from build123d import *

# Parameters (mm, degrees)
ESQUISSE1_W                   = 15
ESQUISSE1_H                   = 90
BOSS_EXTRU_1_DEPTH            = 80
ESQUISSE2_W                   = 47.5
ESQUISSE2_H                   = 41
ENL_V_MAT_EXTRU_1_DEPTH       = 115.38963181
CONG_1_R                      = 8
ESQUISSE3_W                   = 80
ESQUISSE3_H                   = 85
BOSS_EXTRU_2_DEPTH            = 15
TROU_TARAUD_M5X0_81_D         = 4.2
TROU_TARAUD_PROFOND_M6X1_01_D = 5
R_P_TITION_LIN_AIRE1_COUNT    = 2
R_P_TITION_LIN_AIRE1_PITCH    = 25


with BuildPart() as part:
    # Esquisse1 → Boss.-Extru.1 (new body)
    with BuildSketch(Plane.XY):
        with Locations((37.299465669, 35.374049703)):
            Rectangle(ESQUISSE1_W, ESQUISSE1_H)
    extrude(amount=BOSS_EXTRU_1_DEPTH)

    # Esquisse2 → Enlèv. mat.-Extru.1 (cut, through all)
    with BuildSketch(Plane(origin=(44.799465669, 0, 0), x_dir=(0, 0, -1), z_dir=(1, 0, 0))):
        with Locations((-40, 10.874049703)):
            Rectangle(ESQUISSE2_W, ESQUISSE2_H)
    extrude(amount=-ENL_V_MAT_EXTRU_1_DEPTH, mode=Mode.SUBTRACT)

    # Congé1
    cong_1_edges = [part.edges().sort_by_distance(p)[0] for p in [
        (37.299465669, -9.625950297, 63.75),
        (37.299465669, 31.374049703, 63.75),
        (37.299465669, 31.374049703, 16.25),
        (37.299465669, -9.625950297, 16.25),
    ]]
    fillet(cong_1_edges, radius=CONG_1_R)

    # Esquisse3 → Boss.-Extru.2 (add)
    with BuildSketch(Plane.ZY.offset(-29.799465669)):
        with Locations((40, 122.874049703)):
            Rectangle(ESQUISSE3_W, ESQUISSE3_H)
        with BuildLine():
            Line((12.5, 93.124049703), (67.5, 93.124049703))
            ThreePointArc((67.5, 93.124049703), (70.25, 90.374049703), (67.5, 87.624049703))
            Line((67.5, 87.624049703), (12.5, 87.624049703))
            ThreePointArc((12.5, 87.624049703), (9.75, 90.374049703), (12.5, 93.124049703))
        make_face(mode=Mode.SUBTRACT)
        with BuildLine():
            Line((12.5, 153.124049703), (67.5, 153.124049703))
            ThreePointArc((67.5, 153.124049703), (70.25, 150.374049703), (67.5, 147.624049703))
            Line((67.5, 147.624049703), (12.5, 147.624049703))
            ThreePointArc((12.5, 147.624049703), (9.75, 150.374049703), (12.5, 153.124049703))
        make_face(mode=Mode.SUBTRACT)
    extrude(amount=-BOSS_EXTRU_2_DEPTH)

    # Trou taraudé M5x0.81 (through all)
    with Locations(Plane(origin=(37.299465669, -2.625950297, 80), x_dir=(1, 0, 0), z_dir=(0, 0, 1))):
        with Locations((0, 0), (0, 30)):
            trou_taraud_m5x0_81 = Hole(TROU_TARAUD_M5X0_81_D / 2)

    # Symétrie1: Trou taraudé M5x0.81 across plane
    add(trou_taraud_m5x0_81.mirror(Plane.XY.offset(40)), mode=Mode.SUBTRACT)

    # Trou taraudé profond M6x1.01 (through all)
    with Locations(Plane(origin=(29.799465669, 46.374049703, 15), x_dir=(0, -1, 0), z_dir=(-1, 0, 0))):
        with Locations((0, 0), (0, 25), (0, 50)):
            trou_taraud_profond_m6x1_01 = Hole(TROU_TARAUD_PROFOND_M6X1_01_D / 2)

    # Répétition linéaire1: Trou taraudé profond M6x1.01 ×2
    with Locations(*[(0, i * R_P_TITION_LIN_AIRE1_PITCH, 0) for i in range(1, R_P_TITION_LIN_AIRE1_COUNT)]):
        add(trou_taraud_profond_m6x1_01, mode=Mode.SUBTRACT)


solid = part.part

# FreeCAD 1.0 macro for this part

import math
import FreeCAD as App
import Part
import Sketcher

V = App.Vector
Q = App.Units.Quantity


def edges_at(feature, points):
    """Names of the edges that pass closest to the given points."""
    edges = feature.Shape.Edges
    near = lambda p: min(range(len(edges)), key=lambda i: edges[i].distToShape(Part.Vertex(*p))[0])
    return sorted({f"Edge{near(p) + 1}" for p in points})


def add_polygon(sketch, points):
    """Adds a closed chain of lines whose ends are joined by coincident constraints."""
    first, n = sketch.GeometryCount, len(points)
    for a, b in zip(points, points[1:] + points[:1]):
        sketch.addGeometry(Part.LineSegment(App.Vector(*a, 0), App.Vector(*b, 0)), False)
    for i in range(n):
        sketch.addConstraint(Sketcher.Constraint("Coincident", first + i, 2, first + (i + 1) % n, 1))

doc = App.newDocument("Part")
params = doc.addObject("Spreadsheet::Sheet", "Params")
for row, (alias, value) in enumerate([
    ("sketch1_width", "15 mm"),
    ("sketch1_height", "90 mm"),
    ("pad1_length", "80 mm"),
    ("sketch2_width", "41 mm"),
    ("sketch2_height", "47.5 mm"),
    ("fillet_radius", "8 mm"),
    ("sketch3_width", "85 mm"),
    ("sketch3_height", "80 mm"),
    ("sketch3_height2", "55 mm"),
    ("sketch3_radius", "2.75 mm"),
    ("pad2_length", "15 mm"),
    ("sketch4_diameter", "4.2 mm"),
    ("hole_diameter", "4.2 mm"),
    ("sketch5_diameter", "5 mm"),
    ("hole2_diameter", "5 mm"),
    ("linearpattern_pitch", "25 mm"),
], start=1):
    params.set(f"A{row}", alias)
    params.set(f"B{row}", "=" + value)
    params.setAlias(f"B{row}", alias)

body = doc.addObject("PartDesign::Body", "Body")

# Sketch on XY plane
sketch1 = body.newObject("Sketcher::SketchObject", "Sketch")
sketch1.AttachmentSupport = (doc.getObject("XY_Plane"), [""])
sketch1.MapMode = "FlatFace"
add_polygon(sketch1, [(30, 80), (30, -10), (45, -10), (45, 80)])  # lines 0-3
sketch1.addConstraint([
    Sketcher.Constraint("Vertical", 0),
    Sketcher.Constraint("Horizontal", 1),
    Sketcher.Constraint("Vertical", 2),
    Sketcher.Constraint("Horizontal", 3),
    Sketcher.Constraint("DistanceX", 1, 1, 1, 2, Q("15 mm")),
    Sketcher.Constraint("DistanceY", 0, 2, 0, 1, Q("90 mm")),
    Sketcher.Constraint("DistanceY", 0, 2, -1, 1, Q("9.62595 mm")),
    Sketcher.Constraint("DistanceX", -1, 1, 0, 2, Q("29.799466 mm")),
])
sketch1.setExpression("Constraints[8]", "Params.sketch1_width")
sketch1.setExpression("Constraints[9]", "Params.sketch1_height")
pad1 = body.newObject("PartDesign::Pad", "Pad")
pad1.Profile = sketch1
pad1.setExpression("Length", "Params.pad1_length")

# Sketch on YZ plane
sketch2 = body.newObject("Sketcher::SketchObject", "Sketch001")
sketch2.AttachmentSupport = (doc.getObject("YZ_Plane"), [""])
sketch2.MapMode = "FlatFace"
sketch2.AttachmentOffset = App.Placement(V(0, 0, 44.799466), App.Rotation())
add_polygon(sketch2, [(31, 64), (-10, 64), (-10, 16), (31, 16)])  # lines 0-3
sketch2.addConstraint([
    Sketcher.Constraint("Horizontal", 0),
    Sketcher.Constraint("Vertical", 1),
    Sketcher.Constraint("Horizontal", 2),
    Sketcher.Constraint("Vertical", 3),
    Sketcher.Constraint("DistanceX", 0, 2, 0, 1, Q("41 mm")),
    Sketcher.Constraint("DistanceY", 1, 2, 1, 1, Q("47.5 mm")),
    Sketcher.Constraint("DistanceY", -1, 1, 0, 2, Q("63.75 mm")),
    Sketcher.Constraint("DistanceX", 0, 2, -1, 1, Q("9.62595 mm")),
])
sketch2.setExpression("Constraints[8]", "Params.sketch2_width")
sketch2.setExpression("Constraints[9]", "Params.sketch2_height")
pocket1 = body.newObject("PartDesign::Pocket", "Pocket")
pocket1.Profile = sketch2
pocket1.Type = "ThroughAll"
doc.recompute()

fillet = body.newObject("PartDesign::Fillet", "Fillet")
fillet.Base = (pocket1, edges_at(pocket1, [
    (37.299, -9.626, 63.75),
    (37.299, 31.374, 63.75),
    (37.299, 31.374, 16.25),
    (37.299, -9.626, 16.25),
]))
fillet.setExpression("Radius", "Params.fillet_radius")

# Sketch on YZ plane
sketch3 = body.newObject("Sketcher::SketchObject", "Sketch002")
sketch3.AttachmentSupport = (doc.getObject("YZ_Plane"), [""])
sketch3.MapMode = "FlatFace"
sketch3.AttachmentOffset = App.Placement(V(0, 0, 29.799466), App.Rotation())
add_polygon(sketch3, [(165.4, 0), (80.4, 0), (80.4, 80), (165.4, 80)])  # lines 0-3
sketch3.addGeometry(Part.ArcOfCircle(Part.Circle(V(90.4, 12.5, 0), V(0, 0, 1), 2.8), math.radians(180), math.radians(360)), False)  # 4
sketch3.addGeometry(Part.LineSegment(V(93.1, 12.5, 0), V(93.1, 67.5, 0)), False)  # 5
sketch3.addGeometry(Part.ArcOfCircle(Part.Circle(V(90.4, 67.5, 0), V(0, 0, 1), 2.8), math.radians(0), math.radians(180)), False)  # 6
sketch3.addGeometry(Part.LineSegment(V(87.6, 67.5, 0), V(87.6, 12.5, 0)), False)  # 7
sketch3.addGeometry(Part.ArcOfCircle(Part.Circle(V(150.4, 12.5, 0), V(0, 0, 1), 2.8), math.radians(180), math.radians(360)), False)  # 8
sketch3.addGeometry(Part.LineSegment(V(153.1, 12.5, 0), V(153.1, 67.5, 0)), False)  # 9
sketch3.addGeometry(Part.ArcOfCircle(Part.Circle(V(150.4, 67.5, 0), V(0, 0, 1), 2.8), math.radians(0), math.radians(180)), False)  # 10
sketch3.addGeometry(Part.LineSegment(V(147.6, 67.5, 0), V(147.6, 12.5, 0)), False)  # 11
sketch3.addConstraint([
    Sketcher.Constraint("Tangent", 4, 2, 5, 1),
    Sketcher.Constraint("Tangent", 5, 2, 6, 1),
    Sketcher.Constraint("Tangent", 6, 2, 7, 1),
    Sketcher.Constraint("Tangent", 7, 2, 4, 1),
    Sketcher.Constraint("Tangent", 8, 2, 9, 1),
    Sketcher.Constraint("Tangent", 9, 2, 10, 1),
    Sketcher.Constraint("Tangent", 10, 2, 11, 1),
    Sketcher.Constraint("Tangent", 11, 2, 8, 1),
    Sketcher.Constraint("Horizontal", 0),
    Sketcher.Constraint("Vertical", 1),
    Sketcher.Constraint("Horizontal", 2),
    Sketcher.Constraint("Vertical", 3),
    Sketcher.Constraint("Vertical", 5),
    Sketcher.Constraint("Vertical", 7),
    Sketcher.Constraint("Vertical", 9),
    Sketcher.Constraint("Vertical", 11),
    Sketcher.Constraint("Equal", 6, 8),
    Sketcher.Constraint("PointOnObject", 0, 2, -1),
    Sketcher.Constraint("Horizontal", 4, 3, 8, 3),
    Sketcher.Constraint("Horizontal", 6, 3, 10, 3),
    Sketcher.Constraint("DistanceX", 0, 2, 0, 1, Q("85 mm")),
    Sketcher.Constraint("DistanceY", 1, 1, 1, 2, Q("80 mm")),
    Sketcher.Constraint("DistanceY", 5, 1, 5, 2, Q("55 mm")),
    Sketcher.Constraint("Radius", 4, Q("2.75 mm")),
    Sketcher.Constraint("DistanceX", 4, 3, 8, 3, Q("60 mm")),
    Sketcher.Constraint("DistanceX", 0, 2, 4, 3, Q("10 mm")),
    Sketcher.Constraint("DistanceY", -1, 1, 4, 3, Q("12.5 mm")),
    Sketcher.Constraint("DistanceX", -1, 1, 4, 3, Q("90.37405 mm")),
])
sketch3.setExpression("Constraints[24]", "Params.sketch3_width")
sketch3.setExpression("Constraints[25]", "Params.sketch3_height")
sketch3.setExpression("Constraints[26]", "Params.sketch3_height2")
sketch3.setExpression("Constraints[27]", "Params.sketch3_radius")
pad2 = body.newObject("PartDesign::Pad", "Pad001")
pad2.Profile = sketch3
pad2.setExpression("Length", "Params.pad2_length")

# Sketch on XY plane
sketch4 = body.newObject("Sketcher::SketchObject", "Sketch003")
sketch4.AttachmentSupport = (doc.getObject("XY_Plane"), [""])
sketch4.MapMode = "FlatFace"
sketch4.AttachmentOffset = App.Placement(V(0, 0, 80), App.Rotation())
sketch4.addGeometry([
    Part.Circle(V(37.3, -2.6, 0), V(0, 0, 1), 2.1),
    Part.Circle(V(37.3, 27.4, 0), V(0, 0, 1), 2.1),
], False)
sketch4.addConstraint([
    Sketcher.Constraint("Equal", 0, 1),
    Sketcher.Constraint("Vertical", 0, 3, 1, 3),
    Sketcher.Constraint("Diameter", 0, Q("4.2 mm")),
    Sketcher.Constraint("DistanceY", 0, 3, 1, 3, Q("30 mm")),
    Sketcher.Constraint("DistanceY", 0, 3, -1, 1, Q("2.62595 mm")),
    Sketcher.Constraint("DistanceX", -1, 1, 0, 3, Q("37.299466 mm")),
])
sketch4.setExpression("Constraints[2]", "Params.sketch4_diameter")
doc.recompute()
hole = body.newObject("PartDesign::Hole", "Hole")
hole.Profile = sketch4
hole.ThreadType = "None"
hole.setExpression("Diameter", "Params.hole_diameter")
hole.DepthType = "ThroughAll"
doc.recompute()

datumplane = body.newObject("PartDesign::Plane", "DatumPlane")
datumplane.AttachmentSupport = (doc.getObject("XY_Plane"), [""])
datumplane.MapMode = "FlatFace"
datumplane.AttachmentOffset = App.Placement(V(0, 0, 40), App.Rotation())
mirrored = body.newObject("PartDesign::Mirrored", "Mirrored")
mirrored.Originals = [hole]
mirrored.MirrorPlane = (datumplane, [""])
body.Tip = mirrored

# Sketch on YZ plane
sketch5 = body.newObject("Sketcher::SketchObject", "Sketch004")
sketch5.AttachmentSupport = (doc.getObject("YZ_Plane"), [""])
sketch5.MapMode = "FlatFace"
sketch5.AttachmentOffset = App.Placement(V(0, 0, 29.799466), App.Rotation())
sketch5.addGeometry([
    Part.Circle(V(46.4, 15, 0), V(0, 0, 1), 2.5),
    Part.Circle(V(46.4, 40, 0), V(0, 0, 1), 2.5),
    Part.Circle(V(46.4, 65, 0), V(0, 0, 1), 2.5),
], False)
sketch5.addConstraint([
    Sketcher.Constraint("Equal", 0, 1),
    Sketcher.Constraint("Equal", 1, 2),
    Sketcher.Constraint("Vertical", 0, 3, 1, 3),
    Sketcher.Constraint("Vertical", 1, 3, 2, 3),
    Sketcher.Constraint("Diameter", 0, Q("5 mm")),
    Sketcher.Constraint("DistanceY", -1, 1, 0, 3, Q("15 mm")),
    Sketcher.Constraint("DistanceY", -1, 1, 1, 3, Q("40 mm")),
    Sketcher.Constraint("DistanceY", -1, 1, 2, 3, Q("65 mm")),
    Sketcher.Constraint("DistanceX", -1, 1, 0, 3, Q("46.37405 mm")),
])
sketch5.setExpression("Constraints[4]", "Params.sketch5_diameter")
doc.recompute()
hole2 = body.newObject("PartDesign::Hole", "Hole001")
hole2.Profile = sketch5
hole2.ThreadType = "None"
hole2.setExpression("Diameter", "Params.hole2_diameter")
hole2.DepthType = "ThroughAll"
hole2.Reversed = True
doc.recompute()

linearpattern = body.newObject("PartDesign::LinearPattern", "LinearPattern")
linearpattern.Originals = [hole2]
linearpattern.Direction = (doc.getObject("Y_Axis"), [""])
linearpattern.Mode = "offset"
linearpattern.setExpression("Offset", "Params.linearpattern_pitch")
linearpattern.Occurrences = 2
body.Tip = linearpattern

doc.recompute()
